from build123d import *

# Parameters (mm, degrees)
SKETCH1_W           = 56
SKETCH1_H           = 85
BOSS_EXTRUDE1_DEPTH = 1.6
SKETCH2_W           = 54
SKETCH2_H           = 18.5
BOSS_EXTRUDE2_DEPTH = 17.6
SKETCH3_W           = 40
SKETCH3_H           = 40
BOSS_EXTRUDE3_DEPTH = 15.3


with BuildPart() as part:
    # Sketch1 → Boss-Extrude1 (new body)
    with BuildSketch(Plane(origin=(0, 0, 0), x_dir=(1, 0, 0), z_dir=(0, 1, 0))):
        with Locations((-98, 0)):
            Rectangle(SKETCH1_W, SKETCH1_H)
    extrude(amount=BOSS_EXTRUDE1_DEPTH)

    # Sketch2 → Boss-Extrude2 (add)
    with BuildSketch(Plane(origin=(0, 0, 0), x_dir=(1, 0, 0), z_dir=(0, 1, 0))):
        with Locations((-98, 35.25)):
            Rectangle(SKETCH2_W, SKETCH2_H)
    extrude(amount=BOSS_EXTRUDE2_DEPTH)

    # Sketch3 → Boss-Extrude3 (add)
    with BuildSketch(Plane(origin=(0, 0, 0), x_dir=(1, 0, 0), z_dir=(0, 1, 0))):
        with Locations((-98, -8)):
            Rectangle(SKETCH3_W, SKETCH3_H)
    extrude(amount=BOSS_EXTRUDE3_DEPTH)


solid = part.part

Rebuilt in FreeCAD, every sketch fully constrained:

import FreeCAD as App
import Part
import Sketcher


def add_polygon(sketch, points):
    """Adds a closed chain of lines whose ends are joined by coincident constraints."""
    first, n = sketch.GeometryCount, len(points)
    for a, b in zip(points, points[1:] + points[:1]):
        sketch.addGeometry(Part.LineSegment(App.Vector(*a, 0), App.Vector(*b, 0)), False)
    for i in range(n):
        sketch.addConstraint(Sketcher.Constraint("Coincident", first + i, 2, first + (i + 1) % n, 1))

doc = App.newDocument("Part")
body = doc.addObject("PartDesign::Body", "Body")

# Sketch on XZ plane
sketch1 = doc.addObject("Sketcher::SketchObject", "Sketch")
body.addObject(sketch1)
sketch1.AttachmentSupport = (doc.XZ_Plane, [""])
sketch1.MapMode = "FlatFace"
add_polygon(sketch1, [(-126, -42), (-126, 42), (-70, 42), (-70, -42)])  # lines 0-3
sketch1.addConstraint([
    Sketcher.Constraint("Vertical", 0),
    Sketcher.Constraint("Horizontal", 1),
    Sketcher.Constraint("Vertical", 2),
    Sketcher.Constraint("Horizontal", 3),
    Sketcher.Constraint("DistanceX", 1, 1, 1, 2, 56.0),
    Sketcher.Constraint("DistanceY", 0, 1, 0, 2, 85.0),
    Sketcher.Constraint("DistanceX", 0, 2, -1, 1, 126.0),
    Sketcher.Constraint("DistanceY", -1, 1, 0, 2, 42.5),
])
pad1 = doc.addObject("PartDesign::Pad", "Pad")
body.addObject(pad1)
pad1.Profile = sketch1
pad1.Length = 1.6
pad1.Reversed = True

# Sketch on XZ plane
sketch2 = doc.addObject("Sketcher::SketchObject", "Sketch001")
body.addObject(sketch2)
sketch2.AttachmentSupport = (doc.XZ_Plane, [""])
sketch2.MapMode = "FlatFace"
add_polygon(sketch2, [(-125, -44), (-125, -26), (-71, -26), (-71, -44)])  # lines 0-3
sketch2.addConstraint([
    Sketcher.Constraint("Vertical", 0),
    Sketcher.Constraint("Horizontal", 1),
    Sketcher.Constraint("Vertical", 2),
    Sketcher.Constraint("Horizontal", 3),
    Sketcher.Constraint("DistanceX", 1, 1, 1, 2, 54.0),
    Sketcher.Constraint("DistanceY", 0, 1, 0, 2, 18.5),
    Sketcher.Constraint("DistanceX", 0, 2, -1, 1, 125.0),
    Sketcher.Constraint("DistanceY", 0, 2, -1, 1, 26.0),
])
pad2 = doc.addObject("PartDesign::Pad", "Pad001")
body.addObject(pad2)
pad2.Profile = sketch2
pad2.Length = 17.6
pad2.Reversed = True

# Sketch on XZ plane
sketch3 = doc.addObject("Sketcher::SketchObject", "Sketch002")
body.addObject(sketch3)
sketch3.AttachmentSupport = (doc.XZ_Plane, [""])
sketch3.MapMode = "FlatFace"
add_polygon(sketch3, [(-118, -12), (-118, 28), (-78, 28), (-78, -12)])  # lines 0-3
sketch3.addConstraint([
    Sketcher.Constraint("Vertical", 0),
    Sketcher.Constraint("Horizontal", 1),
    Sketcher.Constraint("Vertical", 2),
    Sketcher.Constraint("Horizontal", 3),
    Sketcher.Constraint("Equal", 3, 0),
    Sketcher.Constraint("DistanceX", 1, 1, 1, 2, 40.0),
    Sketcher.Constraint("DistanceX", 0, 2, -1, 1, 118.0),
    Sketcher.Constraint("DistanceY", -1, 1, 0, 2, 28.0),
])
pad3 = doc.addObject("PartDesign::Pad", "Pad002")
body.addObject(pad3)
pad3.Profile = sketch3
pad3.Length = 15.3
pad3.Reversed = True

doc.recompute()
